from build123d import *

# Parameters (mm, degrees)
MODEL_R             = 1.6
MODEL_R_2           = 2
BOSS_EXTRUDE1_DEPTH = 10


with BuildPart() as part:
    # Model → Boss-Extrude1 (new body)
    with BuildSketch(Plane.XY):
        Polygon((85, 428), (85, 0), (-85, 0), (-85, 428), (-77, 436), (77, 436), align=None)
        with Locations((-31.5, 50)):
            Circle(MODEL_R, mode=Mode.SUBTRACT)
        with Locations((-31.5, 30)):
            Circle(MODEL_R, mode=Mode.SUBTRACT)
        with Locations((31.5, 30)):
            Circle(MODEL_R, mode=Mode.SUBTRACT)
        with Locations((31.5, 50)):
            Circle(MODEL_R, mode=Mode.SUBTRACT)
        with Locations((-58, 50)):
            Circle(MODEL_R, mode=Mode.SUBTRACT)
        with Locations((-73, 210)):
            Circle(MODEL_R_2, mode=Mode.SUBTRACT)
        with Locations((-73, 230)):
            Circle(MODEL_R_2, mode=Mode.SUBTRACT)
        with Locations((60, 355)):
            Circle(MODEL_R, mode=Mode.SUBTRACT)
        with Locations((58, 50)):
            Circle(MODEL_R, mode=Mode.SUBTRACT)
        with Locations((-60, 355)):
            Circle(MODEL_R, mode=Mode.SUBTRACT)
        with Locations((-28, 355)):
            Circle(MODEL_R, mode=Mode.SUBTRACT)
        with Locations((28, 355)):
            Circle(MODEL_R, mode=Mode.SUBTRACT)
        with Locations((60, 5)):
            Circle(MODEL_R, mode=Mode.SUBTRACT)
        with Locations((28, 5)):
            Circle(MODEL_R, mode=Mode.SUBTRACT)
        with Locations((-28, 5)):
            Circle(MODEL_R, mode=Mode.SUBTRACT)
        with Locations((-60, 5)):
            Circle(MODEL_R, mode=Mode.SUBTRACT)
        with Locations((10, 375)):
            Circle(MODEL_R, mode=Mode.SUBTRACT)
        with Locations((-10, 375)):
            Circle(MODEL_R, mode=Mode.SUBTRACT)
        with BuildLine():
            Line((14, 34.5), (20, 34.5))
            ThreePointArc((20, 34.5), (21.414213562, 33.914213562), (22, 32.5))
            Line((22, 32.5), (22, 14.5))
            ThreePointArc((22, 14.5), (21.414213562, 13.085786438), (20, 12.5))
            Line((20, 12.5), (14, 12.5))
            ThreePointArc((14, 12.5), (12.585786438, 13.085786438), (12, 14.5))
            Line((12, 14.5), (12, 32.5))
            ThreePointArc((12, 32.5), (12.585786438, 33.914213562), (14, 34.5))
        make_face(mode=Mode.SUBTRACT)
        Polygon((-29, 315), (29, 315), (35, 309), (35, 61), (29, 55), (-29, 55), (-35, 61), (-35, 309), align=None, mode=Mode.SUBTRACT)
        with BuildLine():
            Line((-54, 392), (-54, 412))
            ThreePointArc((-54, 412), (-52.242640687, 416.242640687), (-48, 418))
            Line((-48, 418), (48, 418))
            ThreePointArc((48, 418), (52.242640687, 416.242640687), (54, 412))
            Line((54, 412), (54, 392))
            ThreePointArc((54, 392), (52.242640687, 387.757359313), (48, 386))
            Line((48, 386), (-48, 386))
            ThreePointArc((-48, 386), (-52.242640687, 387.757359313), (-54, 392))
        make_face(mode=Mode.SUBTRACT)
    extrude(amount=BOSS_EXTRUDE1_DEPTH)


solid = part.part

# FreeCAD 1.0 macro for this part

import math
import FreeCAD as App
import Part
import Sketcher
from FreeCAD import Vector
Q = App.Units.Quantity

doc = App.newDocument("Part")
body = doc.addObject("PartDesign::Body", "Body")

# Sketch on XY plane
sketch1 = body.newObject("Sketcher::SketchObject", "Sketch")
sketch1.AttachmentSupport = (doc.getObject("XY_Plane"), [""])
sketch1.MapMode = "FlatFace"
sketch1.addGeometry([
    Part.LineSegment(Vector(85, 0, 0), Vector(85, 428, 0)),  # 0
    Part.LineSegment(Vector(85, 428, 0), Vector(77, 436, 0)),  # 1
    Part.LineSegment(Vector(77, 436, 0), Vector(-77, 436, 0)),  # 2
    Part.LineSegment(Vector(-77, 436, 0), Vector(-85, 428, 0)),  # 3
    Part.LineSegment(Vector(-85, 428, 0), Vector(-85, 0, 0)),  # 4
    Part.LineSegment(Vector(-85, 0, 0), Vector(85, 0, 0)),  # 5
    Part.Circle(Vector(60, 5, 0), Vector(0, 0, 1), 1.6),  # 6
    Part.Circle(Vector(58, 50, 0), Vector(0, 0, 1), 1.6),  # 7
    Part.Circle(Vector(28, 5, 0), Vector(0, 0, 1), 1.6),  # 8
    Part.Circle(Vector(31.5, 30, 0), Vector(0, 0, 1), 1.6),  # 9
    Part.Circle(Vector(31.5, 50, 0), Vector(0, 0, 1), 1.6),  # 10
    Part.LineSegment(Vector(14, 34.5, 0), Vector(20, 34.5, 0)),  # 11
    Part.ArcOfCircle(Part.Circle(Vector(20, 32.5, 0), Vector(0, 0, 1), 2), math.radians(0), math.radians(90)),  # 12
    Part.LineSegment(Vector(22, 32.5, 0), Vector(22, 14.5, 0)),  # 13
    Part.ArcOfCircle(Part.Circle(Vector(20, 14.5, 0), Vector(0, 0, 1), 2), math.radians(-90), math.radians(0)),  # 14
    Part.LineSegment(Vector(20, 12.5, 0), Vector(14, 12.5, 0)),  # 15
    Part.ArcOfCircle(Part.Circle(Vector(14, 14.5, 0), Vector(0, 0, 1), 2), math.radians(-180), math.radians(-90)),  # 16
    Part.LineSegment(Vector(12, 14.5, 0), Vector(12, 32.5, 0)),  # 17
    Part.ArcOfCircle(Part.Circle(Vector(14, 32.5, 0), Vector(0, 0, 1), 2), math.radians(90), math.radians(180)),  # 18
    Part.LineSegment(Vector(-29, 315, 0), Vector(29, 315, 0)),  # 19
    Part.LineSegment(Vector(29, 315, 0), Vector(35, 309, 0)),  # 20
    Part.LineSegment(Vector(35, 309, 0), Vector(35, 61, 0)),  # 21
    Part.LineSegment(Vector(35, 61, 0), Vector(29, 55, 0)),  # 22
    Part.LineSegment(Vector(29, 55, 0), Vector(-29, 55, 0)),  # 23
    Part.LineSegment(Vector(-29, 55, 0), Vector(-35, 61, 0)),  # 24
    Part.LineSegment(Vector(-35, 61, 0), Vector(-35, 309, 0)),  # 25
    Part.LineSegment(Vector(-35, 309, 0), Vector(-29, 315, 0)),  # 26
    Part.Circle(Vector(-28, 5, 0), Vector(0, 0, 1), 1.6),  # 27
    Part.Circle(Vector(-31.5, 30, 0), Vector(0, 0, 1), 1.6),  # 28
    Part.Circle(Vector(-31.5, 50, 0), Vector(0, 0, 1), 1.6),  # 29
    Part.Circle(Vector(-60, 5, 0), Vector(0, 0, 1), 1.6),  # 30
    Part.Circle(Vector(-58, 50, 0), Vector(0, 0, 1), 1.6),  # 31
    Part.Circle(Vector(-73, 210, 0), Vector(0, 0, 1), 2),  # 32
    Part.Circle(Vector(60, 355, 0), Vector(0, 0, 1), 1.6),  # 33
    Part.Circle(Vector(28, 355, 0), Vector(0, 0, 1), 1.6),  # 34
    Part.Circle(Vector(10, 375, 0), Vector(0, 0, 1), 1.6),  # 35
    Part.LineSegment(Vector(-54, 392, 0), Vector(-54, 412, 0)),  # 36
    Part.ArcOfCircle(Part.Circle(Vector(-48, 412, 0), Vector(0, 0, 1), 6), math.radians(90), math.radians(180)),  # 37
    Part.LineSegment(Vector(-48, 418, 0), Vector(48, 418, 0)),  # 38
    Part.ArcOfCircle(Part.Circle(Vector(48, 412, 0), Vector(0, 0, 1), 6), math.radians(0), math.radians(90)),  # 39
    Part.LineSegment(Vector(54, 412, 0), Vector(54, 392, 0)),  # 40
    Part.ArcOfCircle(Part.Circle(Vector(48, 392, 0), Vector(0, 0, 1), 6), math.radians(-90), math.radians(0)),  # 41
    Part.LineSegment(Vector(48, 386, 0), Vector(-48, 386, 0)),  # 42
    Part.ArcOfCircle(Part.Circle(Vector(-48, 392, 0), Vector(0, 0, 1), 6), math.radians(180), math.radians(270)),  # 43
    Part.Circle(Vector(-73, 230, 0), Vector(0, 0, 1), 2),  # 44
    Part.Circle(Vector(-28, 355, 0), Vector(0, 0, 1), 1.6),  # 45
    Part.Circle(Vector(-10, 375, 0), Vector(0, 0, 1), 1.6),  # 46
    Part.Circle(Vector(-60, 355, 0), Vector(0, 0, 1), 1.6),  # 47
], False)
sketch1.addConstraint([
    Sketcher.Constraint("Coincident", 0, 2, 1, 1),
    Sketcher.Constraint("Coincident", 1, 2, 2, 1),
    Sketcher.Constraint("Coincident", 2, 2, 3, 1),
    Sketcher.Constraint("Coincident", 3, 2, 4, 1),
    Sketcher.Constraint("Coincident", 4, 2, 5, 1),
    Sketcher.Constraint("Coincident", 5, 2, 0, 1),
    Sketcher.Constraint("Tangent", 11, 2, 12, 2),
    Sketcher.Constraint("Tangent", 12, 1, 13, 1),
    Sketcher.Constraint("Tangent", 13, 2, 14, 2),
    Sketcher.Constraint("Tangent", 14, 1, 15, 1),
    Sketcher.Constraint("Tangent", 15, 2, 16, 2),
    Sketcher.Constraint("Tangent", 16, 1, 17, 1),
    Sketcher.Constraint("Tangent", 17, 2, 18, 2),
    Sketcher.Constraint("Tangent", 18, 1, 11, 1),
    Sketcher.Constraint("Coincident", 19, 2, 20, 1),
    Sketcher.Constraint("Coincident", 20, 2, 21, 1),
    Sketcher.Constraint("Coincident", 21, 2, 22, 1),
    Sketcher.Constraint("Coincident", 22, 2, 23, 1),
    Sketcher.Constraint("Coincident", 23, 2, 24, 1),
    Sketcher.Constraint("Coincident", 24, 2, 25, 1),
    Sketcher.Constraint("Coincident", 25, 2, 26, 1),
    Sketcher.Constraint("Coincident", 26, 2, 19, 1),
    Sketcher.Constraint("Tangent", 36, 2, 37, 2),
    Sketcher.Constraint("Tangent", 37, 1, 38, 1),
    Sketcher.Constraint("Tangent", 38, 2, 39, 2),
    Sketcher.Constraint("Tangent", 39, 1, 40, 1),
    Sketcher.Constraint("Tangent", 40, 2, 41, 2),
    Sketcher.Constraint("Tangent", 41, 1, 42, 1),
    Sketcher.Constraint("Tangent", 42, 2, 43, 2),
    Sketcher.Constraint("Tangent", 43, 1, 36, 1),
    Sketcher.Constraint("Vertical", 0),
    Sketcher.Constraint("Horizontal", 2),
    Sketcher.Constraint("Vertical", 4),
    Sketcher.Constraint("Horizontal", 5),
    Sketcher.Constraint("Horizontal", 11),
    Sketcher.Constraint("Vertical", 13),
    Sketcher.Constraint("Horizontal", 15),
    Sketcher.Constraint("Vertical", 17),
    Sketcher.Constraint("Horizontal", 19),
    Sketcher.Constraint("Vertical", 21),
    Sketcher.Constraint("Horizontal", 23),
    Sketcher.Constraint("Vertical", 25),
    Sketcher.Constraint("Vertical", 36),
    Sketcher.Constraint("Horizontal", 38),
    Sketcher.Constraint("Vertical", 40),
    Sketcher.Constraint("Horizontal", 42),
    Sketcher.Constraint("Equal", 6, 7),
    Sketcher.Constraint("Equal", 7, 8),
    Sketcher.Constraint("Equal", 8, 9),
    Sketcher.Constraint("Equal", 9, 10),
    Sketcher.Constraint("Equal", 12, 14),
    Sketcher.Constraint("Equal", 14, 16),
    Sketcher.Constraint("Equal", 16, 18),
    Sketcher.Constraint("Equal", 10, 27),
    Sketcher.Constraint("Equal", 27, 28),
    Sketcher.Constraint("Equal", 28, 29),
    Sketcher.Constraint("Equal", 29, 30),
    Sketcher.Constraint("Equal", 30, 31),
    Sketcher.Constraint("Equal", 18, 32),
    Sketcher.Constraint("Equal", 31, 33),
    Sketcher.Constraint("Equal", 33, 34),
    Sketcher.Constraint("Equal", 34, 35),
    Sketcher.Constraint("Equal", 37, 39),
    Sketcher.Constraint("Equal", 39, 41),
    Sketcher.Constraint("Equal", 41, 43),
    Sketcher.Constraint("Equal", 32, 44),
    Sketcher.Constraint("Equal", 35, 45),
    Sketcher.Constraint("Equal", 45, 46),
    Sketcher.Constraint("Equal", 46, 47),
    Sketcher.Constraint("Symmetric", 4, 2, 5, 2, -1, 1),
    Sketcher.Constraint("Symmetric", 8, 3, 27, 3, -2),
    Sketcher.Constraint("Symmetric", 9, 3, 28, 3, -2),
    Sketcher.Constraint("Symmetric", 10, 3, 29, 3, -2),
    Sketcher.Constraint("Symmetric", 6, 3, 30, 3, -2),
    Sketcher.Constraint("Symmetric", 7, 3, 31, 3, -2),
    Sketcher.Constraint("Symmetric", 34, 3, 45, 3, -2),
    Sketcher.Constraint("Symmetric", 35, 3, 46, 3, -2),
    Sketcher.Constraint("Symmetric", 33, 3, 47, 3, -2),
    Sketcher.Constraint("Symmetric", 21, 2, 24, 2, -2),
    Sketcher.Constraint("Perpendicular", 1, 3),
    Sketcher.Constraint("Perpendicular", 3, 20),
    Sketcher.Constraint("Perpendicular", 20, 22),
    Sketcher.Constraint("Perpendicular", 22, 24),
    Sketcher.Constraint("Perpendicular", 24, 26),
    Sketcher.Constraint("Horizontal", 6, 3, 8, 3),
    Sketcher.Constraint("Horizontal", 7, 3, 10, 3),
    Sketcher.Constraint("Horizontal", 33, 3, 34, 3),
    Sketcher.Constraint("Horizontal", 0, 2, 3, 2),
    Sketcher.Constraint("Horizontal", 20, 2, 25, 2),
    Sketcher.Constraint("Vertical", 9, 3, 10, 3),
    Sketcher.Constraint("Vertical", 6, 3, 33, 3),
    Sketcher.Constraint("Vertical", 8, 3, 34, 3),
    Sketcher.Constraint("Vertical", 32, 3, 44, 3),
    Sketcher.Constraint("Vertical", 19, 2, 22, 2),
    Sketcher.Constraint("Vertical", 23, 2, 26, 2),
    Sketcher.Constraint("Diameter", 32, Q("4 mm")),
    Sketcher.Constraint("Radius", 37, Q("6 mm")),
    Sketcher.Constraint("Diameter", 6, Q("3.2 mm")),
    Sketcher.Constraint("DistanceX", 2, 2, 2, 1, Q("154 mm")),
    Sketcher.Constraint("DistanceX", 5, 1, 5, 2, Q("170 mm")),
    Sketcher.Constraint("DistanceX", 11, 1, 11, 2, Q("6 mm")),
    Sketcher.Constraint("DistanceX", 19, 1, 19, 2, Q("58 mm")),
    Sketcher.Constraint("DistanceX", 38, 1, 38, 2, Q("96 mm")),
    Sketcher.Constraint("DistanceY", 0, 1, 0, 2, Q("428 mm")),
    Sketcher.Constraint("DistanceY", 13, 2, 13, 1, Q("18 mm")),
    Sketcher.Constraint("DistanceY", 21, 2, 21, 1, Q("248 mm")),
    Sketcher.Constraint("DistanceY", 36, 1, 36, 2, Q("20 mm")),
    Sketcher.Constraint("DistanceX", -1, 1, 6, 3, Q("60 mm")),
    Sketcher.Constraint("DistanceY", -1, 1, 6, 3, Q("5 mm")),
    Sketcher.Constraint("DistanceX", -1, 1, 7, 3, Q("58 mm")),
    Sketcher.Constraint("DistanceY", -1, 1, 7, 3, Q("50 mm")),
    Sketcher.Constraint("DistanceX", -1, 1, 8, 3, Q("28 mm")),
    Sketcher.Constraint("DistanceY", -1, 1, 9, 3, Q("30 mm")),
    Sketcher.Constraint("DistanceX", -1, 1, 12, 3, Q("20 mm")),
    Sketcher.Constraint("DistanceX", 32, 3, -1, 1, Q("73 mm")),
    Sketcher.Constraint("DistanceY", -1, 1, 32, 3, Q("210 mm")),
    Sketcher.Constraint("DistanceY", -1, 1, 33, 3, Q("355 mm")),
    Sketcher.Constraint("DistanceX", -1, 1, 35, 3, Q("10 mm")),
    Sketcher.Constraint("DistanceY", -1, 1, 35, 3, Q("375 mm")),
    Sketcher.Constraint("DistanceX", 37, 3, -1, 1, Q("48 mm")),
    Sketcher.Constraint("DistanceY", -1, 1, 37, 3, Q("412 mm")),
    Sketcher.Constraint("DistanceY", -1, 1, 44, 3, Q("230 mm")),
    Sketcher.Constraint("DistanceY", -1, 1, 19, 2, Q("315 mm")),
    Sketcher.Constraint("DistanceX", -1, 1, 20, 2, Q("35 mm")),
    Sketcher.Constraint("DistanceX", -1, 1, 9, 3, Q("31.5 mm")),
    Sketcher.Constraint("DistanceY", -1, 1, 12, 3, Q("32.5 mm")),
])
pad1 = body.newObject("PartDesign::Pad", "Pad")
pad1.Profile = sketch1
pad1.Length = 10

doc.recompute()
